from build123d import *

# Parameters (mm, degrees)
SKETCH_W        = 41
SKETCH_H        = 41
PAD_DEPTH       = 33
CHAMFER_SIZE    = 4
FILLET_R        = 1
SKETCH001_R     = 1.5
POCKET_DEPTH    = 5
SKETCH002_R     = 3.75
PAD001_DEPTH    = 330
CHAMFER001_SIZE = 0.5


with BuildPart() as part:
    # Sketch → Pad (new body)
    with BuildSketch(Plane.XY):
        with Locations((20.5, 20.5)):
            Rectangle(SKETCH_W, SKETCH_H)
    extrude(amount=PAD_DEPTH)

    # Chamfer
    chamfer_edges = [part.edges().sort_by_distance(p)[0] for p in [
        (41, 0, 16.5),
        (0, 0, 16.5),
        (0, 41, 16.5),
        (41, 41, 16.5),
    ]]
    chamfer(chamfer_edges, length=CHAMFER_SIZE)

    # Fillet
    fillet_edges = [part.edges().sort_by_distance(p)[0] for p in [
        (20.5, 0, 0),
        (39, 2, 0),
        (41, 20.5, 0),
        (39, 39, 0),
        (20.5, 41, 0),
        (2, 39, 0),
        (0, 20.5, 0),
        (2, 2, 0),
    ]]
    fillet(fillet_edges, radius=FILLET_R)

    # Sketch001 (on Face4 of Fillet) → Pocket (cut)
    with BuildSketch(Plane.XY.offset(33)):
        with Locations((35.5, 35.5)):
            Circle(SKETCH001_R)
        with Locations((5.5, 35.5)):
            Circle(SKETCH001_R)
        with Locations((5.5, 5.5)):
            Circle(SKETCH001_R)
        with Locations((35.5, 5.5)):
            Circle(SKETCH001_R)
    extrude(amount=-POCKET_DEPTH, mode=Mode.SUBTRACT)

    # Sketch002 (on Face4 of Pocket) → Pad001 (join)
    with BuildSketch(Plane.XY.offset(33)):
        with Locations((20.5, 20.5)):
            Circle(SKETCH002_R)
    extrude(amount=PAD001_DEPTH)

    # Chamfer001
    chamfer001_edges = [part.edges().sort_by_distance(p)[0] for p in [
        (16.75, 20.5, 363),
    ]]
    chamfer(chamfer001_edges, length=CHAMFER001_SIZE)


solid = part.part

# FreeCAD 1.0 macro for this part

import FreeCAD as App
import Part
import Sketcher


def edges_at(feature, points):
    """Names of the edges that pass closest to the given points."""
    edges = feature.Shape.Edges
    near = lambda p: min(range(len(edges)), key=lambda i: edges[i].distToShape(Part.Vertex(*p))[0])
    return sorted({f"Edge{near(p) + 1}" for p in points})

doc = App.newDocument("Part")
params = doc.addObject("Spreadsheet::Sheet", "Params")
for row, (alias, value) in enumerate([
    ("sketch1_width", "41 mm"),
    ("pad1_length", "33 mm"),
    ("chamfer_size", "4 mm"),
    ("fillet_radius", "1 mm"),
    ("sketch2_diameter", "3 mm"),
    ("pocket1_length", "5 mm"),
    ("sketch3_diameter", "7.5 mm"),
    ("pad2_length", "330 mm"),
    ("chamfer2_size", "0.5 mm"),
], start=1):
    params.set(f"A{row}", alias)
    params.set(f"B{row}", "=" + value)
    params.setAlias(f"B{row}", alias)

body = doc.addObject("PartDesign::Body", "Body")

# Sketch on XY plane
sketch1 = body.newObject("Sketcher::SketchObject", "Sketch")
sketch1.AttachmentSupport = (doc.getObject("XY_Plane"), [""])
sketch1.MapMode = "FlatFace"
sketch1.addGeometry([
    Part.LineSegment(App.Vector(0, 41, 0), App.Vector(0, 0, 0)),
    Part.LineSegment(App.Vector(0, 0, 0), App.Vector(41, 0, 0)),
    Part.LineSegment(App.Vector(41, 0, 0), App.Vector(41, 41, 0)),
    Part.LineSegment(App.Vector(41, 41, 0), App.Vector(0, 41, 0)),
], False)
sketch1.addConstraint([
    Sketcher.Constraint("Coincident", 0, 2, 1, 1),
    Sketcher.Constraint("Coincident", 1, 2, 2, 1),
    Sketcher.Constraint("Coincident", 2, 2, 3, 1),
    Sketcher.Constraint("Coincident", 3, 2, 0, 1),
    Sketcher.Constraint("Vertical", 0),
    Sketcher.Constraint("Horizontal", 1),
    Sketcher.Constraint("Vertical", 2),
    Sketcher.Constraint("Horizontal", 3),
    Sketcher.Constraint("Coincident", 0, 2, -1, 1),
    Sketcher.Constraint("Equal", 3, 0),
    Sketcher.Constraint("DistanceX", 1, 1, 1, 2, 41.0),
])
sketch1.setExpression("Constraints[10]", "Params.sketch1_width")
pad1 = body.newObject("PartDesign::Pad", "Pad")
pad1.Profile = sketch1
pad1.setExpression("Length", "Params.pad1_length")
doc.recompute()

chamfer = body.newObject("PartDesign::Chamfer", "Chamfer")
chamfer.Base = (pad1, edges_at(pad1, [
    (41, 0, 16.5),
    (0, 0, 16.5),
    (0, 41, 16.5),
    (41, 41, 16.5),
]))
chamfer.setExpression("Size", "Params.chamfer_size")
doc.recompute()

fillet = body.newObject("PartDesign::Fillet", "Fillet")
fillet.Base = (chamfer, edges_at(chamfer, [
    (20.5, 0, 0),
    (39, 2, 0),
    (41, 20.5, 0),
    (39, 39, 0),
    (20.5, 41, 0),
    (2, 39, 0),
    (0, 20.5, 0),
    (2, 2, 0),
]))
fillet.setExpression("Radius", "Params.fillet_radius")

# Sketch on XY plane
sketch2 = body.newObject("Sketcher::SketchObject", "Sketch001")
sketch2.AttachmentSupport = (doc.getObject("XY_Plane"), [""])
sketch2.MapMode = "FlatFace"
sketch2.AttachmentOffset = App.Placement(App.Vector(0, 0, 33), App.Rotation())
sketch2.addGeometry([
    Part.Circle(App.Vector(35.5, 35.5, 0), App.Vector(0, 0, 1), 1.5),
    Part.Circle(App.Vector(5.5, 35.5, 0), App.Vector(0, 0, 1), 1.5),
    Part.Circle(App.Vector(5.5, 5.5, 0), App.Vector(0, 0, 1), 1.5),
    Part.Circle(App.Vector(35.5, 5.5, 0), App.Vector(0, 0, 1), 1.5),
], False)
sketch2.addConstraint([
    Sketcher.Constraint("Equal", 0, 1),
    Sketcher.Constraint("Equal", 1, 2),
    Sketcher.Constraint("Equal", 2, 3),
    Sketcher.Constraint("Horizontal", 0, 3, 1, 3),
    Sketcher.Constraint("Horizontal", 2, 3, 3, 3),
    Sketcher.Constraint("Vertical", 1, 3, 2, 3),
    Sketcher.Constraint("Vertical", 0, 3, 3, 3),
    Sketcher.Constraint("Diameter", 0, 3.0),
    Sketcher.Constraint("DistanceX", 1, 3, 0, 3, 30.0),
    Sketcher.Constraint("DistanceY", 2, 3, 1, 3, 30.0),
    Sketcher.Constraint("DistanceX", -1, 1, 0, 3, 35.5),
    Sketcher.Constraint("DistanceY", -1, 1, 0, 3, 35.5),
])
sketch2.setExpression("Constraints[7]", "Params.sketch2_diameter")
pocket1 = body.newObject("PartDesign::Pocket", "Pocket")
pocket1.Profile = sketch2
pocket1.setExpression("Length", "Params.pocket1_length")

# Sketch on XY plane
sketch3 = body.newObject("Sketcher::SketchObject", "Sketch002")
sketch3.AttachmentSupport = (doc.getObject("XY_Plane"), [""])
sketch3.MapMode = "FlatFace"
sketch3.AttachmentOffset = App.Placement(App.Vector(0, 0, 33), App.Rotation())
sketch3.addGeometry(Part.Circle(App.Vector(20.5, 20.5, 0), App.Vector(0, 0, 1), 3.8), False)
sketch3.addConstraint([
    Sketcher.Constraint("Diameter", 0, 7.5),
    Sketcher.Constraint("DistanceX", -1, 1, 0, 3, 20.5),
    Sketcher.Constraint("DistanceY", -1, 1, 0, 3, 20.5),
])
sketch3.setExpression("Constraints[0]", "Params.sketch3_diameter")
pad2 = body.newObject("PartDesign::Pad", "Pad001")
pad2.Profile = sketch3
pad2.setExpression("Length", "Params.pad2_length")
doc.recompute()

chamfer2 = body.newObject("PartDesign::Chamfer", "Chamfer001")
chamfer2.Base = (pad2, edges_at(pad2, [(16.75, 20.5, 363)]))
chamfer2.setExpression("Size", "Params.chamfer2_size")

doc.recompute()
